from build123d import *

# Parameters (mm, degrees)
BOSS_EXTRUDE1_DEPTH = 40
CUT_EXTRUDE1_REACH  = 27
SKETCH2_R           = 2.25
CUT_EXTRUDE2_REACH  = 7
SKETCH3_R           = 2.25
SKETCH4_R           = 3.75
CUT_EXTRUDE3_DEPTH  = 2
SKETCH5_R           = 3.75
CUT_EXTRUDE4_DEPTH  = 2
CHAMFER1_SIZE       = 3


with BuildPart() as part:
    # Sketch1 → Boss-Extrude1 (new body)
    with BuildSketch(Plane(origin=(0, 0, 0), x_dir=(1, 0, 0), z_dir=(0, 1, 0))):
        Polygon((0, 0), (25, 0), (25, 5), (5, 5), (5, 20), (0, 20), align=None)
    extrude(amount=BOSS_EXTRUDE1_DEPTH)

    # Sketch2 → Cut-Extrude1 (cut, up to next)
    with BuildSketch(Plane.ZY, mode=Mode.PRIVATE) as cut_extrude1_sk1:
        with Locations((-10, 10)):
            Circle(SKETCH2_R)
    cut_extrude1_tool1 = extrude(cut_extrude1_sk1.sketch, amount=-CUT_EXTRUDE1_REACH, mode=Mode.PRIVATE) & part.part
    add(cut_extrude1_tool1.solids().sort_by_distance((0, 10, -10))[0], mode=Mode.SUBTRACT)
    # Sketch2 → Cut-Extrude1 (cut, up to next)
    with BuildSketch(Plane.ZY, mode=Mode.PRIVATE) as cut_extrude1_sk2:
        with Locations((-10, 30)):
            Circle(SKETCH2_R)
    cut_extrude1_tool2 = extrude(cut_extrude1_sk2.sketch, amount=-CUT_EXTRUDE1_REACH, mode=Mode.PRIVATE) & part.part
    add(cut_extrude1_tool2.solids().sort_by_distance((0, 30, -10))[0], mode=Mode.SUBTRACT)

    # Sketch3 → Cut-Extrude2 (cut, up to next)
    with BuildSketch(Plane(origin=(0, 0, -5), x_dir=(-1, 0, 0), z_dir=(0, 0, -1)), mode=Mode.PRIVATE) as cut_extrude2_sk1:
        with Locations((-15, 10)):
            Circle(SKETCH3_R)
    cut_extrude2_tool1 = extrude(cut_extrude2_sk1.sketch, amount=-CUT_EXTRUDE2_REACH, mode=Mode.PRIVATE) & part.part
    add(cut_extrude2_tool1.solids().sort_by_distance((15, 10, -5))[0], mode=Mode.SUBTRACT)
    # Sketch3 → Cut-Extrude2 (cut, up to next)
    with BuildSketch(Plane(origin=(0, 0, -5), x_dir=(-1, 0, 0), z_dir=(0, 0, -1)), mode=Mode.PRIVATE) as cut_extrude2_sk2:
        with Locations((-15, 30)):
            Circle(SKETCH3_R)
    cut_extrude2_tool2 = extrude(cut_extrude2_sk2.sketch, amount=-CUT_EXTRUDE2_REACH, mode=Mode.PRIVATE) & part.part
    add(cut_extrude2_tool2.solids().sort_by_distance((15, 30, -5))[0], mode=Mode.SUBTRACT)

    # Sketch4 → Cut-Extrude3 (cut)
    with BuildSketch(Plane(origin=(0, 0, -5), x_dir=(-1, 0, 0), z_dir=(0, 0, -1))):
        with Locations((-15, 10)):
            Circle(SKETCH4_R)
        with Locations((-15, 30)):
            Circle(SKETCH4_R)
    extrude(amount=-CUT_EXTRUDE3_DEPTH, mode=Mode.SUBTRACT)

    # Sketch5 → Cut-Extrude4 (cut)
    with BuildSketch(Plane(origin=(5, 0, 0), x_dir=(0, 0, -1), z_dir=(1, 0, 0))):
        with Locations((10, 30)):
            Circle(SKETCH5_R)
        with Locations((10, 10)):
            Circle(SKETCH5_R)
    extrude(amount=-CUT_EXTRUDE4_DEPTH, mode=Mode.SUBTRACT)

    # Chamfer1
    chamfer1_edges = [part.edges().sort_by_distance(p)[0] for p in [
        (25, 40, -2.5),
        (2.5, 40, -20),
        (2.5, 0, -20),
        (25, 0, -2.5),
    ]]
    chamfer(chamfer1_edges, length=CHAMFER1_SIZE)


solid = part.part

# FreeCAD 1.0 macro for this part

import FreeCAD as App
import Part
import Sketcher


def edges_at(feature, points):
    """Names of the edges that pass closest to the given points."""
    edges = feature.Shape.Edges
    near = lambda p: min(range(len(edges)), key=lambda i: edges[i].distToShape(Part.Vertex(*p))[0])
    return sorted({f"Edge{near(p) + 1}" for p in points})

doc = App.newDocument("Part")
body = doc.addObject("PartDesign::Body", "Body")

# Sketch on XZ plane
sketch1 = body.newObject("Sketcher::SketchObject", "Sketch")
sketch1.AttachmentSupport = (doc.getObject("XZ_Plane"), [""])
sketch1.MapMode = "FlatFace"
sketch1.addGeometry(Part.LineSegment(App.Vector(0, 0, 0), App.Vector(25, 0, 0)), False)
sketch1.addGeometry(Part.LineSegment(App.Vector(25, 0, 0), App.Vector(25, -5, 0)), False)
sketch1.addGeometry(Part.LineSegment(App.Vector(25, -5, 0), App.Vector(5, -5, 0)), False)
sketch1.addGeometry(Part.LineSegment(App.Vector(5, -5, 0), App.Vector(5, -20, 0)), False)
sketch1.addGeometry(Part.LineSegment(App.Vector(5, -20, 0), App.Vector(0, -20, 0)), False)
sketch1.addGeometry(Part.LineSegment(App.Vector(0, -20, 0), App.Vector(0, 0, 0)), False)
sketch1.addConstraint(Sketcher.Constraint("Coincident", 0, 2, 1, 1))
sketch1.addConstraint(Sketcher.Constraint("Coincident", 1, 2, 2, 1))
sketch1.addConstraint(Sketcher.Constraint("Coincident", 2, 2, 3, 1))
sketch1.addConstraint(Sketcher.Constraint("Coincident", 3, 2, 4, 1))
sketch1.addConstraint(Sketcher.Constraint("Coincident", 4, 2, 5, 1))
sketch1.addConstraint(Sketcher.Constraint("Coincident", 5, 2, 0, 1))
sketch1.addConstraint(Sketcher.Constraint("Horizontal", 0))
sketch1.addConstraint(Sketcher.Constraint("Vertical", 1))
sketch1.addConstraint(Sketcher.Constraint("Horizontal", 2))
sketch1.addConstraint(Sketcher.Constraint("Vertical", 3))
sketch1.addConstraint(Sketcher.Constraint("Horizontal", 4))
sketch1.addConstraint(Sketcher.Constraint("Vertical", 5))
sketch1.addConstraint(Sketcher.Constraint("Coincident", 5, 2, -1, 1))
sketch1.addConstraint(Sketcher.Constraint("Equal", 4, 1))
sketch1.addConstraint(Sketcher.Constraint("Equal", 2, 5))
sketch1.addConstraint(Sketcher.Constraint("DistanceX", 0, 1, 0, 2, 25.0))
sketch1.addConstraint(Sketcher.Constraint("DistanceX", 2, 2, 2, 1, 20.0))
pad1 = body.newObject("PartDesign::Pad", "Pad")
pad1.Profile = sketch1
pad1.Length = 40
pad1.Reversed = True

# Sketch on YZ plane
sketch2 = body.newObject("Sketcher::SketchObject", "Sketch001")
sketch2.AttachmentSupport = (doc.getObject("YZ_Plane"), [""])
sketch2.MapMode = "FlatFace"
sketch2.addGeometry(Part.Circle(App.Vector(10, -10, 0), App.Vector(0, 0, 1), 2.2), False)
sketch2.addConstraint(Sketcher.Constraint("Diameter", 0, 4.5))
sketch2.addConstraint(Sketcher.Constraint("DistanceX", -1, 1, 0, 3, 10.0))
sketch2.addConstraint(Sketcher.Constraint("DistanceY", 0, 3, -1, 1, 10.0))
pocket1 = body.newObject("PartDesign::Pocket", "Pocket")
pocket1.Profile = sketch2
pocket1.Type = "UpToFirst"
pocket1.Reversed = True

# Sketch on YZ plane
sketch3 = body.newObject("Sketcher::SketchObject", "Sketch002")
sketch3.AttachmentSupport = (doc.getObject("YZ_Plane"), [""])
sketch3.MapMode = "FlatFace"
sketch3.addGeometry(Part.Circle(App.Vector(30, -10, 0), App.Vector(0, 0, 1), 2.2), False)
sketch3.addConstraint(Sketcher.Constraint("Diameter", 0, 4.5))
sketch3.addConstraint(Sketcher.Constraint("DistanceX", -1, 1, 0, 3, 30.0))
sketch3.addConstraint(Sketcher.Constraint("DistanceY", 0, 3, -1, 1, 10.0))
pocket2 = body.newObject("PartDesign::Pocket", "Pocket001")
pocket2.Profile = sketch3
pocket2.Type = "UpToFirst"
pocket2.Reversed = True

# Sketch on XY plane
sketch4 = body.newObject("Sketcher::SketchObject", "Sketch003")
sketch4.AttachmentSupport = (doc.getObject("XY_Plane"), [""])
sketch4.MapMode = "FlatFace"
sketch4.AttachmentOffset = App.Placement(App.Vector(0, 0, -5), App.Rotation())
sketch4.addGeometry(Part.Circle(App.Vector(15, 10, 0), App.Vector(0, 0, 1), 2.2), False)
sketch4.addConstraint(Sketcher.Constraint("Diameter", 0, 4.5))
sketch4.addConstraint(Sketcher.Constraint("DistanceX", -1, 1, 0, 3, 15.0))
sketch4.addConstraint(Sketcher.Constraint("DistanceY", -1, 1, 0, 3, 10.0))
pocket3 = body.newObject("PartDesign::Pocket", "Pocket002")
pocket3.Profile = sketch4
pocket3.Type = "UpToFirst"
pocket3.Reversed = True

# Sketch on XY plane
sketch5 = body.newObject("Sketcher::SketchObject", "Sketch004")
sketch5.AttachmentSupport = (doc.getObject("XY_Plane"), [""])
sketch5.MapMode = "FlatFace"
sketch5.AttachmentOffset = App.Placement(App.Vector(0, 0, -5), App.Rotation())
sketch5.addGeometry(Part.Circle(App.Vector(15, 30, 0), App.Vector(0, 0, 1), 2.2), False)
sketch5.addConstraint(Sketcher.Constraint("Diameter", 0, 4.5))
sketch5.addConstraint(Sketcher.Constraint("DistanceX", -1, 1, 0, 3, 15.0))
sketch5.addConstraint(Sketcher.Constraint("DistanceY", -1, 1, 0, 3, 30.0))
pocket4 = body.newObject("PartDesign::Pocket", "Pocket003")
pocket4.Profile = sketch5
pocket4.Type = "UpToFirst"
pocket4.Reversed = True

# Sketch on XY plane
sketch6 = body.newObject("Sketcher::SketchObject", "Sketch005")
sketch6.AttachmentSupport = (doc.getObject("XY_Plane"), [""])
sketch6.MapMode = "FlatFace"
sketch6.AttachmentOffset = App.Placement(App.Vector(0, 0, -5), App.Rotation())
sketch6.addGeometry(Part.Circle(App.Vector(15, 10, 0), App.Vector(0, 0, 1), 3.8), False)
sketch6.addGeometry(Part.Circle(App.Vector(15, 30, 0), App.Vector(0, 0, 1), 3.8), False)
sketch6.addConstraint(Sketcher.Constraint("Equal", 0, 1))
sketch6.addConstraint(Sketcher.Constraint("Vertical", 0, 3, 1, 3))
sketch6.addConstraint(Sketcher.Constraint("Diameter", 0, 7.5))
sketch6.addConstraint(Sketcher.Constraint("DistanceX", -1, 1, 0, 3, 15.0))
sketch6.addConstraint(Sketcher.Constraint("DistanceY", -1, 1, 0, 3, 10.0))
sketch6.addConstraint(Sketcher.Constraint("DistanceY", -1, 1, 1, 3, 30.0))
pocket5 = body.newObject("PartDesign::Pocket", "Pocket004")
pocket5.Profile = sketch6
pocket5.Length = 2
pocket5.Reversed = True

# Sketch on YZ plane
sketch7 = body.newObject("Sketcher::SketchObject", "Sketch006")
sketch7.AttachmentSupport = (doc.getObject("YZ_Plane"), [""])
sketch7.MapMode = "FlatFace"
sketch7.AttachmentOffset = App.Placement(App.Vector(0, 0, 5), App.Rotation())
sketch7.addGeometry(Part.Circle(App.Vector(30, -10, 0), App.Vector(0, 0, 1), 3.8), False)
sketch7.addGeometry(Part.Circle(App.Vector(10, -10, 0), App.Vector(0, 0, 1), 3.8), False)
sketch7.addConstraint(Sketcher.Constraint("Equal", 0, 1))
sketch7.addConstraint(Sketcher.Constraint("Horizontal", 0, 3, 1, 3))
sketch7.addConstraint(Sketcher.Constraint("Diameter", 0, 7.5))
sketch7.addConstraint(Sketcher.Constraint("DistanceX", -1, 1, 0, 3, 30.0))
sketch7.addConstraint(Sketcher.Constraint("DistanceY", 0, 3, -1, 1, 10.0))
sketch7.addConstraint(Sketcher.Constraint("DistanceX", -1, 1, 1, 3, 10.0))
pocket6 = body.newObject("PartDesign::Pocket", "Pocket005")
pocket6.Profile = sketch7
pocket6.Length = 2
doc.recompute()

chamfer = body.newObject("PartDesign::Chamfer", "Chamfer")
chamfer.Base = (pocket6, edges_at(pocket6, [
    (25, 40, -2.5),
    (2.5, 40, -20),
    (2.5, 0, -20),
    (25, 0, -2.5),
]))
chamfer.Size = 3

doc.recompute()
